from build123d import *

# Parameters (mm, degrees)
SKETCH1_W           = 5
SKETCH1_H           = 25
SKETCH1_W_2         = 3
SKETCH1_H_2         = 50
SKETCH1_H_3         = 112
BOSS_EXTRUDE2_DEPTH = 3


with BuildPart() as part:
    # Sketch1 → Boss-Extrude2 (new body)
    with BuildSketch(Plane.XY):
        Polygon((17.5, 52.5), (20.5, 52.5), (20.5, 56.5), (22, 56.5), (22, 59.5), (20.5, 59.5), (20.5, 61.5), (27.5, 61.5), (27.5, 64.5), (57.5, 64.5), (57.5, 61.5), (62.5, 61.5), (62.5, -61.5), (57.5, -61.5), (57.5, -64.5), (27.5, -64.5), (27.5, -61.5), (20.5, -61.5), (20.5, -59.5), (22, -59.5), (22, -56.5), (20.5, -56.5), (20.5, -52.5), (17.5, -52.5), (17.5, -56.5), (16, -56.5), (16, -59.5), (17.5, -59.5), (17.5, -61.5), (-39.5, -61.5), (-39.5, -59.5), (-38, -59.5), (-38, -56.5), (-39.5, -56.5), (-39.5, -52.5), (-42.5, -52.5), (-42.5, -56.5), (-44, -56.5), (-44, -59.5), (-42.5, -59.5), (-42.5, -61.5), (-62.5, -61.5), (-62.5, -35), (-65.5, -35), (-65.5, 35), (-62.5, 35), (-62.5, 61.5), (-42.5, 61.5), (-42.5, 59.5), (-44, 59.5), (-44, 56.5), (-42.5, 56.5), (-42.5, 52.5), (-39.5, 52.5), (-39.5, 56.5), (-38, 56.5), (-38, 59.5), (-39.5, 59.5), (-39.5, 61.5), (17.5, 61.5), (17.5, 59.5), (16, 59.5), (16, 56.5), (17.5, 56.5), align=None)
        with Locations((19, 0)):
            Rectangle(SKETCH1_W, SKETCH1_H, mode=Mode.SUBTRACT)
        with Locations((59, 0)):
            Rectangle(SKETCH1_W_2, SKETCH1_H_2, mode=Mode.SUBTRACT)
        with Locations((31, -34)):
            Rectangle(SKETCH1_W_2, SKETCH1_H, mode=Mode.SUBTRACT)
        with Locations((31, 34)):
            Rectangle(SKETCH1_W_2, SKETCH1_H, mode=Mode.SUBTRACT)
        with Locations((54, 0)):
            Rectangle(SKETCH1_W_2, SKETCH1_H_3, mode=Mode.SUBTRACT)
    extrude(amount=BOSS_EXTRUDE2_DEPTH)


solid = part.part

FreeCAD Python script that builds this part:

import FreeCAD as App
import Part
import Sketcher

V = App.Vector
Q = App.Units.Quantity


def add_polygon(sketch, points):
    """Adds a closed chain of lines whose ends are joined by coincident constraints."""
    first, n = sketch.GeometryCount, len(points)
    for a, b in zip(points, points[1:] + points[:1]):
        sketch.addGeometry(Part.LineSegment(App.Vector(*a, 0), App.Vector(*b, 0)), False)
    for i in range(n):
        sketch.addConstraint(Sketcher.Constraint("Coincident", first + i, 2, first + (i + 1) % n, 1))

doc = App.newDocument("Part")
body = doc.addObject("PartDesign::Body", "Body")

# Sketch on XY plane
sketch1 = doc.addObject("Sketcher::SketchObject", "Sketch")
body.addObject(sketch1)
sketch1.AttachmentSupport = (doc.XY_Plane, [""])
sketch1.MapMode = "FlatFace"
add_polygon(sketch1, [(20.5, 52.5), (17.5, 52.5), (17.5, 56.5), (16, 56.5), (16, 59.5), (17.5, 59.5), (17.5, 61.5), (-39.5, 61.5), (-39.5, 59.5), (-38, 59.5), (-38, 56.5), (-39.5, 56.5), (-39.5, 52.5), (-42.5, 52.5), (-42.5, 56.5), (-44, 56.5), (-44, 59.5), (-42.5, 59.5), (-42.5, 61.5), (-62.5, 61.5), (-62.5, 35), (-65.5, 35), (-65.5, -35), (-62.5, -35), (-62.5, -61.5), (-42.5, -61.5), (-42.5, -59.5), (-44, -59.5), (-44, -56.5), (-42.5, -56.5), (-42.5, -52.5), (-39.5, -52.5), (-39.5, -56.5), (-38, -56.5), (-38, -59.5), (-39.5, -59.5), (-39.5, -61.5), (17.5, -61.5), (17.5, -59.5), (16, -59.5), (16, -56.5), (17.5, -56.5), (17.5, -52.5), (20.5, -52.5), (20.5, -56.5), (22, -56.5), (22, -59.5), (20.5, -59.5), (20.5, -61.5), (27.5, -61.5), (27.5, -64.5), (57.5, -64.5), (57.5, -61.5), (62.5, -61.5), (62.5, 61.5), (57.5, 61.5), (57.5, 64.5), (27.5, 64.5), (27.5, 61.5), (20.5, 61.5), (20.5, 59.5), (22, 59.5), (22, 56.5), (20.5, 56.5)])  # lines 0-63
add_polygon(sketch1, [(29.5, -46.5), (29.5, -21.5), (32.5, -21.5), (32.5, -46.5)])  # lines 64-67
add_polygon(sketch1, [(57.5, -25), (57.5, 25), (60.5, 25), (60.5, -25)])  # lines 68-71
add_polygon(sketch1, [(52.5, -56), (52.5, 56), (55.5, 56), (55.5, -56)])  # lines 72-75
add_polygon(sketch1, [(16.5, -12.5), (16.5, 12.5), (21.5, 12.5), (21.5, -12.5)])  # lines 76-79
add_polygon(sketch1, [(29.5, 21.5), (29.5, 46.5), (32.5, 46.5), (32.5, 21.5)])  # lines 80-83
sketch1.addConstraint([
    Sketcher.Constraint("Horizontal", 0),
    Sketcher.Constraint("Vertical", 1),
    Sketcher.Constraint("Horizontal", 2),
    Sketcher.Constraint("Vertical", 3),
    Sketcher.Constraint("Horizontal", 4),
    Sketcher.Constraint("Vertical", 5),
    Sketcher.Constraint("Horizontal", 6),
    Sketcher.Constraint("Vertical", 7),
    Sketcher.Constraint("Horizontal", 8),
    Sketcher.Constraint("Vertical", 9),
    Sketcher.Constraint("Horizontal", 10),
    Sketcher.Constraint("Vertical", 11),
    Sketcher.Constraint("Horizontal", 12),
    Sketcher.Constraint("Vertical", 13),
    Sketcher.Constraint("Horizontal", 14),
    Sketcher.Constraint("Vertical", 15),
    Sketcher.Constraint("Horizontal", 16),
    Sketcher.Constraint("Vertical", 17),
    Sketcher.Constraint("Horizontal", 18),
    Sketcher.Constraint("Vertical", 19),
    Sketcher.Constraint("Horizontal", 20),
    Sketcher.Constraint("Vertical", 21),
    Sketcher.Constraint("Horizontal", 22),
    Sketcher.Constraint("Vertical", 23),
    Sketcher.Constraint("Horizontal", 24),
    Sketcher.Constraint("Vertical", 25),
    Sketcher.Constraint("Horizontal", 26),
    Sketcher.Constraint("Vertical", 27),
    Sketcher.Constraint("Horizontal", 28),
    Sketcher.Constraint("Vertical", 29),
    Sketcher.Constraint("Horizontal", 30),
    Sketcher.Constraint("Vertical", 31),
    Sketcher.Constraint("Horizontal", 32),
    Sketcher.Constraint("Vertical", 33),
    Sketcher.Constraint("Horizontal", 34),
    Sketcher.Constraint("Vertical", 35),
    Sketcher.Constraint("Horizontal", 36),
    Sketcher.Constraint("Vertical", 37),
    Sketcher.Constraint("Horizontal", 38),
    Sketcher.Constraint("Vertical", 39),
    Sketcher.Constraint("Horizontal", 40),
    Sketcher.Constraint("Vertical", 41),
    Sketcher.Constraint("Horizontal", 42),
    Sketcher.Constraint("Vertical", 43),
    Sketcher.Constraint("Horizontal", 44),
    Sketcher.Constraint("Vertical", 45),
    Sketcher.Constraint("Horizontal", 46),
    Sketcher.Constraint("Vertical", 47),
    Sketcher.Constraint("Horizontal", 48),
    Sketcher.Constraint("Vertical", 49),
    Sketcher.Constraint("Horizontal", 50),
    Sketcher.Constraint("Vertical", 51),
    Sketcher.Constraint("Horizontal", 52),
    Sketcher.Constraint("Vertical", 53),
    Sketcher.Constraint("Horizontal", 54),
    Sketcher.Constraint("Vertical", 55),
    Sketcher.Constraint("Horizontal", 56),
    Sketcher.Constraint("Vertical", 57),
    Sketcher.Constraint("Horizontal", 58),
    Sketcher.Constraint("Vertical", 59),
    Sketcher.Constraint("Horizontal", 60),
    Sketcher.Constraint("Vertical", 61),
    Sketcher.Constraint("Horizontal", 62),
    Sketcher.Constraint("Vertical", 63),
    Sketcher.Constraint("Vertical", 64),
    Sketcher.Constraint("Horizontal", 65),
    Sketcher.Constraint("Vertical", 66),
    Sketcher.Constraint("Horizontal", 67),
    Sketcher.Constraint("Vertical", 68),
    Sketcher.Constraint("Horizontal", 69),
    Sketcher.Constraint("Vertical", 70),
    Sketcher.Constraint("Horizontal", 71),
    Sketcher.Constraint("Vertical", 72),
    Sketcher.Constraint("Horizontal", 73),
    Sketcher.Constraint("Vertical", 74),
    Sketcher.Constraint("Horizontal", 75),
    Sketcher.Constraint("Vertical", 76),
    Sketcher.Constraint("Horizontal", 77),
    Sketcher.Constraint("Vertical", 78),
    Sketcher.Constraint("Horizontal", 79),
    Sketcher.Constraint("Vertical", 80),
    Sketcher.Constraint("Horizontal", 81),
    Sketcher.Constraint("Vertical", 82),
    Sketcher.Constraint("Horizontal", 83),
    Sketcher.Constraint("Symmetric", 18, 2, 52, 2, -1, 1),
    Sketcher.Constraint("Symmetric", 23, 2, 53, 2, -1, 1),
    Sketcher.Constraint("Symmetric", 17, 2, 24, 2, -1),
    Sketcher.Constraint("Symmetric", 15, 2, 26, 2, -1),
    Sketcher.Constraint("Symmetric", 13, 2, 28, 2, -1),
    Sketcher.Constraint("Symmetric", 11, 2, 30, 2, -1),
    Sketcher.Constraint("Symmetric", 9, 2, 32, 2, -1),
    Sketcher.Constraint("Symmetric", 7, 2, 34, 2, -1),
    Sketcher.Constraint("Symmetric", 5, 2, 36, 2, -1),
    Sketcher.Constraint("Symmetric", 3, 2, 38, 2, -1),
    Sketcher.Constraint("Symmetric", 1, 2, 40, 2, -1),
    Sketcher.Constraint("Symmetric", 50, 2, 55, 2, -1),
    Sketcher.Constraint("Symmetric", 48, 2, 57, 2, -1),
    Sketcher.Constraint("Symmetric", 46, 2, 59, 2, -1),
    Sketcher.Constraint("Symmetric", 44, 2, 61, 2, -1),
    Sketcher.Constraint("Symmetric", 42, 2, 63, 2, -1),
    Sketcher.Constraint("Symmetric", 67, 2, 80, 2, -1),
    Sketcher.Constraint("Symmetric", 65, 2, 82, 2, -1),
    Sketcher.Constraint("Horizontal", 4, 2, 7, 2),
    Sketcher.Constraint("Horizontal", 2, 2, 9, 2),
    Sketcher.Constraint("Horizontal", 0, 2, 11, 2),
    Sketcher.Constraint("Horizontal", 10, 2, 13, 2),
    Sketcher.Constraint("Horizontal", 8, 2, 15, 2),
    Sketcher.Constraint("Horizontal", 6, 2, 17, 2),
    Sketcher.Constraint("Horizontal", 40, 2, 43, 2),
    Sketcher.Constraint("Horizontal", 38, 2, 45, 2),
    Sketcher.Constraint("Horizontal", 36, 2, 47, 2),
    Sketcher.Constraint("Vertical", 1, 2, 4, 2),
    Sketcher.Constraint("Vertical", 7, 2, 10, 2),
    Sketcher.Constraint("Vertical", 13, 2, 16, 2),
    Sketcher.Constraint("Vertical", 43, 2, 46, 2),
    Sketcher.Constraint("Vertical", 55, 2, 68, 2),
    Sketcher.Constraint("Equal", 4, 8),
    Sketcher.Constraint("Equal", 0, 12),
    Sketcher.Constraint("Equal", 10, 14),
    Sketcher.Constraint("Equal", 12, 20),
    Sketcher.Constraint("Equal", 40, 44),
    Sketcher.Constraint("Equal", 42, 65),
    Sketcher.Constraint("Equal", 67, 69),
    Sketcher.Constraint("Equal", 71, 73),
    Sketcher.Constraint("Equal", 54, 77),
    Sketcher.Constraint("Equal", 83, 3),
    Sketcher.Constraint("Equal", 19, 23),
    Sketcher.Constraint("Equal", 45, 49),
    Sketcher.Constraint("Equal", 66, 76),
    Sketcher.Constraint("DistanceX", 0, 2, 0, 1, Q("3 mm")),
    Sketcher.Constraint("DistanceX", 6, 2, 6, 1, Q("57 mm")),
    Sketcher.Constraint("DistanceX", 18, 2, 18, 1, Q("20 mm")),
    Sketcher.Constraint("DistanceX", 48, 1, 48, 2, Q("7 mm")),
    Sketcher.Constraint("DistanceX", 50, 1, 50, 2, Q("30 mm")),
    Sketcher.Constraint("DistanceX", 52, 1, 52, 2, Q("5 mm")),
    Sketcher.Constraint("DistanceY", 1, 1, 1, 2, Q("4 mm")),
    Sketcher.Constraint("DistanceY", 5, 1, 5, 2, Q("2 mm")),
    Sketcher.Constraint("DistanceY", 21, 2, 21, 1, Q("70 mm")),
    Sketcher.Constraint("DistanceY", 53, 1, 53, 2, Q("123 mm")),
    Sketcher.Constraint("DistanceY", 64, 1, 64, 2, Q("25 mm")),
    Sketcher.Constraint("DistanceY", 68, 1, 68, 2, Q("50 mm")),
    Sketcher.Constraint("DistanceY", 72, 1, 72, 2, Q("112 mm")),
    Sketcher.Constraint("DistanceX", 2, 2, 2, 1, Q("1.5 mm")),
    Sketcher.Constraint("DistanceY", -1, 1, 68, 2, Q("25 mm")),
    Sketcher.Constraint("DistanceY", -1, 1, 72, 2, Q("56 mm")),
    Sketcher.Constraint("DistanceX", -1, 1, 64, 2, Q("29.5 mm")),
    Sketcher.Constraint("DistanceY", 64, 2, -1, 1, Q("21.5 mm")),
    Sketcher.Constraint("DistanceX", -1, 1, 72, 2, Q("52.5 mm")),
    Sketcher.Constraint("DistanceX", -1, 1, 76, 2, Q("16.5 mm")),
    Sketcher.Constraint("DistanceY", -1, 1, 76, 2, Q("12.5 mm")),
])
pad1 = doc.addObject("PartDesign::Pad", "Pad")
body.addObject(pad1)
pad1.Profile = sketch1
pad1.Length = 3

doc.recompute()
